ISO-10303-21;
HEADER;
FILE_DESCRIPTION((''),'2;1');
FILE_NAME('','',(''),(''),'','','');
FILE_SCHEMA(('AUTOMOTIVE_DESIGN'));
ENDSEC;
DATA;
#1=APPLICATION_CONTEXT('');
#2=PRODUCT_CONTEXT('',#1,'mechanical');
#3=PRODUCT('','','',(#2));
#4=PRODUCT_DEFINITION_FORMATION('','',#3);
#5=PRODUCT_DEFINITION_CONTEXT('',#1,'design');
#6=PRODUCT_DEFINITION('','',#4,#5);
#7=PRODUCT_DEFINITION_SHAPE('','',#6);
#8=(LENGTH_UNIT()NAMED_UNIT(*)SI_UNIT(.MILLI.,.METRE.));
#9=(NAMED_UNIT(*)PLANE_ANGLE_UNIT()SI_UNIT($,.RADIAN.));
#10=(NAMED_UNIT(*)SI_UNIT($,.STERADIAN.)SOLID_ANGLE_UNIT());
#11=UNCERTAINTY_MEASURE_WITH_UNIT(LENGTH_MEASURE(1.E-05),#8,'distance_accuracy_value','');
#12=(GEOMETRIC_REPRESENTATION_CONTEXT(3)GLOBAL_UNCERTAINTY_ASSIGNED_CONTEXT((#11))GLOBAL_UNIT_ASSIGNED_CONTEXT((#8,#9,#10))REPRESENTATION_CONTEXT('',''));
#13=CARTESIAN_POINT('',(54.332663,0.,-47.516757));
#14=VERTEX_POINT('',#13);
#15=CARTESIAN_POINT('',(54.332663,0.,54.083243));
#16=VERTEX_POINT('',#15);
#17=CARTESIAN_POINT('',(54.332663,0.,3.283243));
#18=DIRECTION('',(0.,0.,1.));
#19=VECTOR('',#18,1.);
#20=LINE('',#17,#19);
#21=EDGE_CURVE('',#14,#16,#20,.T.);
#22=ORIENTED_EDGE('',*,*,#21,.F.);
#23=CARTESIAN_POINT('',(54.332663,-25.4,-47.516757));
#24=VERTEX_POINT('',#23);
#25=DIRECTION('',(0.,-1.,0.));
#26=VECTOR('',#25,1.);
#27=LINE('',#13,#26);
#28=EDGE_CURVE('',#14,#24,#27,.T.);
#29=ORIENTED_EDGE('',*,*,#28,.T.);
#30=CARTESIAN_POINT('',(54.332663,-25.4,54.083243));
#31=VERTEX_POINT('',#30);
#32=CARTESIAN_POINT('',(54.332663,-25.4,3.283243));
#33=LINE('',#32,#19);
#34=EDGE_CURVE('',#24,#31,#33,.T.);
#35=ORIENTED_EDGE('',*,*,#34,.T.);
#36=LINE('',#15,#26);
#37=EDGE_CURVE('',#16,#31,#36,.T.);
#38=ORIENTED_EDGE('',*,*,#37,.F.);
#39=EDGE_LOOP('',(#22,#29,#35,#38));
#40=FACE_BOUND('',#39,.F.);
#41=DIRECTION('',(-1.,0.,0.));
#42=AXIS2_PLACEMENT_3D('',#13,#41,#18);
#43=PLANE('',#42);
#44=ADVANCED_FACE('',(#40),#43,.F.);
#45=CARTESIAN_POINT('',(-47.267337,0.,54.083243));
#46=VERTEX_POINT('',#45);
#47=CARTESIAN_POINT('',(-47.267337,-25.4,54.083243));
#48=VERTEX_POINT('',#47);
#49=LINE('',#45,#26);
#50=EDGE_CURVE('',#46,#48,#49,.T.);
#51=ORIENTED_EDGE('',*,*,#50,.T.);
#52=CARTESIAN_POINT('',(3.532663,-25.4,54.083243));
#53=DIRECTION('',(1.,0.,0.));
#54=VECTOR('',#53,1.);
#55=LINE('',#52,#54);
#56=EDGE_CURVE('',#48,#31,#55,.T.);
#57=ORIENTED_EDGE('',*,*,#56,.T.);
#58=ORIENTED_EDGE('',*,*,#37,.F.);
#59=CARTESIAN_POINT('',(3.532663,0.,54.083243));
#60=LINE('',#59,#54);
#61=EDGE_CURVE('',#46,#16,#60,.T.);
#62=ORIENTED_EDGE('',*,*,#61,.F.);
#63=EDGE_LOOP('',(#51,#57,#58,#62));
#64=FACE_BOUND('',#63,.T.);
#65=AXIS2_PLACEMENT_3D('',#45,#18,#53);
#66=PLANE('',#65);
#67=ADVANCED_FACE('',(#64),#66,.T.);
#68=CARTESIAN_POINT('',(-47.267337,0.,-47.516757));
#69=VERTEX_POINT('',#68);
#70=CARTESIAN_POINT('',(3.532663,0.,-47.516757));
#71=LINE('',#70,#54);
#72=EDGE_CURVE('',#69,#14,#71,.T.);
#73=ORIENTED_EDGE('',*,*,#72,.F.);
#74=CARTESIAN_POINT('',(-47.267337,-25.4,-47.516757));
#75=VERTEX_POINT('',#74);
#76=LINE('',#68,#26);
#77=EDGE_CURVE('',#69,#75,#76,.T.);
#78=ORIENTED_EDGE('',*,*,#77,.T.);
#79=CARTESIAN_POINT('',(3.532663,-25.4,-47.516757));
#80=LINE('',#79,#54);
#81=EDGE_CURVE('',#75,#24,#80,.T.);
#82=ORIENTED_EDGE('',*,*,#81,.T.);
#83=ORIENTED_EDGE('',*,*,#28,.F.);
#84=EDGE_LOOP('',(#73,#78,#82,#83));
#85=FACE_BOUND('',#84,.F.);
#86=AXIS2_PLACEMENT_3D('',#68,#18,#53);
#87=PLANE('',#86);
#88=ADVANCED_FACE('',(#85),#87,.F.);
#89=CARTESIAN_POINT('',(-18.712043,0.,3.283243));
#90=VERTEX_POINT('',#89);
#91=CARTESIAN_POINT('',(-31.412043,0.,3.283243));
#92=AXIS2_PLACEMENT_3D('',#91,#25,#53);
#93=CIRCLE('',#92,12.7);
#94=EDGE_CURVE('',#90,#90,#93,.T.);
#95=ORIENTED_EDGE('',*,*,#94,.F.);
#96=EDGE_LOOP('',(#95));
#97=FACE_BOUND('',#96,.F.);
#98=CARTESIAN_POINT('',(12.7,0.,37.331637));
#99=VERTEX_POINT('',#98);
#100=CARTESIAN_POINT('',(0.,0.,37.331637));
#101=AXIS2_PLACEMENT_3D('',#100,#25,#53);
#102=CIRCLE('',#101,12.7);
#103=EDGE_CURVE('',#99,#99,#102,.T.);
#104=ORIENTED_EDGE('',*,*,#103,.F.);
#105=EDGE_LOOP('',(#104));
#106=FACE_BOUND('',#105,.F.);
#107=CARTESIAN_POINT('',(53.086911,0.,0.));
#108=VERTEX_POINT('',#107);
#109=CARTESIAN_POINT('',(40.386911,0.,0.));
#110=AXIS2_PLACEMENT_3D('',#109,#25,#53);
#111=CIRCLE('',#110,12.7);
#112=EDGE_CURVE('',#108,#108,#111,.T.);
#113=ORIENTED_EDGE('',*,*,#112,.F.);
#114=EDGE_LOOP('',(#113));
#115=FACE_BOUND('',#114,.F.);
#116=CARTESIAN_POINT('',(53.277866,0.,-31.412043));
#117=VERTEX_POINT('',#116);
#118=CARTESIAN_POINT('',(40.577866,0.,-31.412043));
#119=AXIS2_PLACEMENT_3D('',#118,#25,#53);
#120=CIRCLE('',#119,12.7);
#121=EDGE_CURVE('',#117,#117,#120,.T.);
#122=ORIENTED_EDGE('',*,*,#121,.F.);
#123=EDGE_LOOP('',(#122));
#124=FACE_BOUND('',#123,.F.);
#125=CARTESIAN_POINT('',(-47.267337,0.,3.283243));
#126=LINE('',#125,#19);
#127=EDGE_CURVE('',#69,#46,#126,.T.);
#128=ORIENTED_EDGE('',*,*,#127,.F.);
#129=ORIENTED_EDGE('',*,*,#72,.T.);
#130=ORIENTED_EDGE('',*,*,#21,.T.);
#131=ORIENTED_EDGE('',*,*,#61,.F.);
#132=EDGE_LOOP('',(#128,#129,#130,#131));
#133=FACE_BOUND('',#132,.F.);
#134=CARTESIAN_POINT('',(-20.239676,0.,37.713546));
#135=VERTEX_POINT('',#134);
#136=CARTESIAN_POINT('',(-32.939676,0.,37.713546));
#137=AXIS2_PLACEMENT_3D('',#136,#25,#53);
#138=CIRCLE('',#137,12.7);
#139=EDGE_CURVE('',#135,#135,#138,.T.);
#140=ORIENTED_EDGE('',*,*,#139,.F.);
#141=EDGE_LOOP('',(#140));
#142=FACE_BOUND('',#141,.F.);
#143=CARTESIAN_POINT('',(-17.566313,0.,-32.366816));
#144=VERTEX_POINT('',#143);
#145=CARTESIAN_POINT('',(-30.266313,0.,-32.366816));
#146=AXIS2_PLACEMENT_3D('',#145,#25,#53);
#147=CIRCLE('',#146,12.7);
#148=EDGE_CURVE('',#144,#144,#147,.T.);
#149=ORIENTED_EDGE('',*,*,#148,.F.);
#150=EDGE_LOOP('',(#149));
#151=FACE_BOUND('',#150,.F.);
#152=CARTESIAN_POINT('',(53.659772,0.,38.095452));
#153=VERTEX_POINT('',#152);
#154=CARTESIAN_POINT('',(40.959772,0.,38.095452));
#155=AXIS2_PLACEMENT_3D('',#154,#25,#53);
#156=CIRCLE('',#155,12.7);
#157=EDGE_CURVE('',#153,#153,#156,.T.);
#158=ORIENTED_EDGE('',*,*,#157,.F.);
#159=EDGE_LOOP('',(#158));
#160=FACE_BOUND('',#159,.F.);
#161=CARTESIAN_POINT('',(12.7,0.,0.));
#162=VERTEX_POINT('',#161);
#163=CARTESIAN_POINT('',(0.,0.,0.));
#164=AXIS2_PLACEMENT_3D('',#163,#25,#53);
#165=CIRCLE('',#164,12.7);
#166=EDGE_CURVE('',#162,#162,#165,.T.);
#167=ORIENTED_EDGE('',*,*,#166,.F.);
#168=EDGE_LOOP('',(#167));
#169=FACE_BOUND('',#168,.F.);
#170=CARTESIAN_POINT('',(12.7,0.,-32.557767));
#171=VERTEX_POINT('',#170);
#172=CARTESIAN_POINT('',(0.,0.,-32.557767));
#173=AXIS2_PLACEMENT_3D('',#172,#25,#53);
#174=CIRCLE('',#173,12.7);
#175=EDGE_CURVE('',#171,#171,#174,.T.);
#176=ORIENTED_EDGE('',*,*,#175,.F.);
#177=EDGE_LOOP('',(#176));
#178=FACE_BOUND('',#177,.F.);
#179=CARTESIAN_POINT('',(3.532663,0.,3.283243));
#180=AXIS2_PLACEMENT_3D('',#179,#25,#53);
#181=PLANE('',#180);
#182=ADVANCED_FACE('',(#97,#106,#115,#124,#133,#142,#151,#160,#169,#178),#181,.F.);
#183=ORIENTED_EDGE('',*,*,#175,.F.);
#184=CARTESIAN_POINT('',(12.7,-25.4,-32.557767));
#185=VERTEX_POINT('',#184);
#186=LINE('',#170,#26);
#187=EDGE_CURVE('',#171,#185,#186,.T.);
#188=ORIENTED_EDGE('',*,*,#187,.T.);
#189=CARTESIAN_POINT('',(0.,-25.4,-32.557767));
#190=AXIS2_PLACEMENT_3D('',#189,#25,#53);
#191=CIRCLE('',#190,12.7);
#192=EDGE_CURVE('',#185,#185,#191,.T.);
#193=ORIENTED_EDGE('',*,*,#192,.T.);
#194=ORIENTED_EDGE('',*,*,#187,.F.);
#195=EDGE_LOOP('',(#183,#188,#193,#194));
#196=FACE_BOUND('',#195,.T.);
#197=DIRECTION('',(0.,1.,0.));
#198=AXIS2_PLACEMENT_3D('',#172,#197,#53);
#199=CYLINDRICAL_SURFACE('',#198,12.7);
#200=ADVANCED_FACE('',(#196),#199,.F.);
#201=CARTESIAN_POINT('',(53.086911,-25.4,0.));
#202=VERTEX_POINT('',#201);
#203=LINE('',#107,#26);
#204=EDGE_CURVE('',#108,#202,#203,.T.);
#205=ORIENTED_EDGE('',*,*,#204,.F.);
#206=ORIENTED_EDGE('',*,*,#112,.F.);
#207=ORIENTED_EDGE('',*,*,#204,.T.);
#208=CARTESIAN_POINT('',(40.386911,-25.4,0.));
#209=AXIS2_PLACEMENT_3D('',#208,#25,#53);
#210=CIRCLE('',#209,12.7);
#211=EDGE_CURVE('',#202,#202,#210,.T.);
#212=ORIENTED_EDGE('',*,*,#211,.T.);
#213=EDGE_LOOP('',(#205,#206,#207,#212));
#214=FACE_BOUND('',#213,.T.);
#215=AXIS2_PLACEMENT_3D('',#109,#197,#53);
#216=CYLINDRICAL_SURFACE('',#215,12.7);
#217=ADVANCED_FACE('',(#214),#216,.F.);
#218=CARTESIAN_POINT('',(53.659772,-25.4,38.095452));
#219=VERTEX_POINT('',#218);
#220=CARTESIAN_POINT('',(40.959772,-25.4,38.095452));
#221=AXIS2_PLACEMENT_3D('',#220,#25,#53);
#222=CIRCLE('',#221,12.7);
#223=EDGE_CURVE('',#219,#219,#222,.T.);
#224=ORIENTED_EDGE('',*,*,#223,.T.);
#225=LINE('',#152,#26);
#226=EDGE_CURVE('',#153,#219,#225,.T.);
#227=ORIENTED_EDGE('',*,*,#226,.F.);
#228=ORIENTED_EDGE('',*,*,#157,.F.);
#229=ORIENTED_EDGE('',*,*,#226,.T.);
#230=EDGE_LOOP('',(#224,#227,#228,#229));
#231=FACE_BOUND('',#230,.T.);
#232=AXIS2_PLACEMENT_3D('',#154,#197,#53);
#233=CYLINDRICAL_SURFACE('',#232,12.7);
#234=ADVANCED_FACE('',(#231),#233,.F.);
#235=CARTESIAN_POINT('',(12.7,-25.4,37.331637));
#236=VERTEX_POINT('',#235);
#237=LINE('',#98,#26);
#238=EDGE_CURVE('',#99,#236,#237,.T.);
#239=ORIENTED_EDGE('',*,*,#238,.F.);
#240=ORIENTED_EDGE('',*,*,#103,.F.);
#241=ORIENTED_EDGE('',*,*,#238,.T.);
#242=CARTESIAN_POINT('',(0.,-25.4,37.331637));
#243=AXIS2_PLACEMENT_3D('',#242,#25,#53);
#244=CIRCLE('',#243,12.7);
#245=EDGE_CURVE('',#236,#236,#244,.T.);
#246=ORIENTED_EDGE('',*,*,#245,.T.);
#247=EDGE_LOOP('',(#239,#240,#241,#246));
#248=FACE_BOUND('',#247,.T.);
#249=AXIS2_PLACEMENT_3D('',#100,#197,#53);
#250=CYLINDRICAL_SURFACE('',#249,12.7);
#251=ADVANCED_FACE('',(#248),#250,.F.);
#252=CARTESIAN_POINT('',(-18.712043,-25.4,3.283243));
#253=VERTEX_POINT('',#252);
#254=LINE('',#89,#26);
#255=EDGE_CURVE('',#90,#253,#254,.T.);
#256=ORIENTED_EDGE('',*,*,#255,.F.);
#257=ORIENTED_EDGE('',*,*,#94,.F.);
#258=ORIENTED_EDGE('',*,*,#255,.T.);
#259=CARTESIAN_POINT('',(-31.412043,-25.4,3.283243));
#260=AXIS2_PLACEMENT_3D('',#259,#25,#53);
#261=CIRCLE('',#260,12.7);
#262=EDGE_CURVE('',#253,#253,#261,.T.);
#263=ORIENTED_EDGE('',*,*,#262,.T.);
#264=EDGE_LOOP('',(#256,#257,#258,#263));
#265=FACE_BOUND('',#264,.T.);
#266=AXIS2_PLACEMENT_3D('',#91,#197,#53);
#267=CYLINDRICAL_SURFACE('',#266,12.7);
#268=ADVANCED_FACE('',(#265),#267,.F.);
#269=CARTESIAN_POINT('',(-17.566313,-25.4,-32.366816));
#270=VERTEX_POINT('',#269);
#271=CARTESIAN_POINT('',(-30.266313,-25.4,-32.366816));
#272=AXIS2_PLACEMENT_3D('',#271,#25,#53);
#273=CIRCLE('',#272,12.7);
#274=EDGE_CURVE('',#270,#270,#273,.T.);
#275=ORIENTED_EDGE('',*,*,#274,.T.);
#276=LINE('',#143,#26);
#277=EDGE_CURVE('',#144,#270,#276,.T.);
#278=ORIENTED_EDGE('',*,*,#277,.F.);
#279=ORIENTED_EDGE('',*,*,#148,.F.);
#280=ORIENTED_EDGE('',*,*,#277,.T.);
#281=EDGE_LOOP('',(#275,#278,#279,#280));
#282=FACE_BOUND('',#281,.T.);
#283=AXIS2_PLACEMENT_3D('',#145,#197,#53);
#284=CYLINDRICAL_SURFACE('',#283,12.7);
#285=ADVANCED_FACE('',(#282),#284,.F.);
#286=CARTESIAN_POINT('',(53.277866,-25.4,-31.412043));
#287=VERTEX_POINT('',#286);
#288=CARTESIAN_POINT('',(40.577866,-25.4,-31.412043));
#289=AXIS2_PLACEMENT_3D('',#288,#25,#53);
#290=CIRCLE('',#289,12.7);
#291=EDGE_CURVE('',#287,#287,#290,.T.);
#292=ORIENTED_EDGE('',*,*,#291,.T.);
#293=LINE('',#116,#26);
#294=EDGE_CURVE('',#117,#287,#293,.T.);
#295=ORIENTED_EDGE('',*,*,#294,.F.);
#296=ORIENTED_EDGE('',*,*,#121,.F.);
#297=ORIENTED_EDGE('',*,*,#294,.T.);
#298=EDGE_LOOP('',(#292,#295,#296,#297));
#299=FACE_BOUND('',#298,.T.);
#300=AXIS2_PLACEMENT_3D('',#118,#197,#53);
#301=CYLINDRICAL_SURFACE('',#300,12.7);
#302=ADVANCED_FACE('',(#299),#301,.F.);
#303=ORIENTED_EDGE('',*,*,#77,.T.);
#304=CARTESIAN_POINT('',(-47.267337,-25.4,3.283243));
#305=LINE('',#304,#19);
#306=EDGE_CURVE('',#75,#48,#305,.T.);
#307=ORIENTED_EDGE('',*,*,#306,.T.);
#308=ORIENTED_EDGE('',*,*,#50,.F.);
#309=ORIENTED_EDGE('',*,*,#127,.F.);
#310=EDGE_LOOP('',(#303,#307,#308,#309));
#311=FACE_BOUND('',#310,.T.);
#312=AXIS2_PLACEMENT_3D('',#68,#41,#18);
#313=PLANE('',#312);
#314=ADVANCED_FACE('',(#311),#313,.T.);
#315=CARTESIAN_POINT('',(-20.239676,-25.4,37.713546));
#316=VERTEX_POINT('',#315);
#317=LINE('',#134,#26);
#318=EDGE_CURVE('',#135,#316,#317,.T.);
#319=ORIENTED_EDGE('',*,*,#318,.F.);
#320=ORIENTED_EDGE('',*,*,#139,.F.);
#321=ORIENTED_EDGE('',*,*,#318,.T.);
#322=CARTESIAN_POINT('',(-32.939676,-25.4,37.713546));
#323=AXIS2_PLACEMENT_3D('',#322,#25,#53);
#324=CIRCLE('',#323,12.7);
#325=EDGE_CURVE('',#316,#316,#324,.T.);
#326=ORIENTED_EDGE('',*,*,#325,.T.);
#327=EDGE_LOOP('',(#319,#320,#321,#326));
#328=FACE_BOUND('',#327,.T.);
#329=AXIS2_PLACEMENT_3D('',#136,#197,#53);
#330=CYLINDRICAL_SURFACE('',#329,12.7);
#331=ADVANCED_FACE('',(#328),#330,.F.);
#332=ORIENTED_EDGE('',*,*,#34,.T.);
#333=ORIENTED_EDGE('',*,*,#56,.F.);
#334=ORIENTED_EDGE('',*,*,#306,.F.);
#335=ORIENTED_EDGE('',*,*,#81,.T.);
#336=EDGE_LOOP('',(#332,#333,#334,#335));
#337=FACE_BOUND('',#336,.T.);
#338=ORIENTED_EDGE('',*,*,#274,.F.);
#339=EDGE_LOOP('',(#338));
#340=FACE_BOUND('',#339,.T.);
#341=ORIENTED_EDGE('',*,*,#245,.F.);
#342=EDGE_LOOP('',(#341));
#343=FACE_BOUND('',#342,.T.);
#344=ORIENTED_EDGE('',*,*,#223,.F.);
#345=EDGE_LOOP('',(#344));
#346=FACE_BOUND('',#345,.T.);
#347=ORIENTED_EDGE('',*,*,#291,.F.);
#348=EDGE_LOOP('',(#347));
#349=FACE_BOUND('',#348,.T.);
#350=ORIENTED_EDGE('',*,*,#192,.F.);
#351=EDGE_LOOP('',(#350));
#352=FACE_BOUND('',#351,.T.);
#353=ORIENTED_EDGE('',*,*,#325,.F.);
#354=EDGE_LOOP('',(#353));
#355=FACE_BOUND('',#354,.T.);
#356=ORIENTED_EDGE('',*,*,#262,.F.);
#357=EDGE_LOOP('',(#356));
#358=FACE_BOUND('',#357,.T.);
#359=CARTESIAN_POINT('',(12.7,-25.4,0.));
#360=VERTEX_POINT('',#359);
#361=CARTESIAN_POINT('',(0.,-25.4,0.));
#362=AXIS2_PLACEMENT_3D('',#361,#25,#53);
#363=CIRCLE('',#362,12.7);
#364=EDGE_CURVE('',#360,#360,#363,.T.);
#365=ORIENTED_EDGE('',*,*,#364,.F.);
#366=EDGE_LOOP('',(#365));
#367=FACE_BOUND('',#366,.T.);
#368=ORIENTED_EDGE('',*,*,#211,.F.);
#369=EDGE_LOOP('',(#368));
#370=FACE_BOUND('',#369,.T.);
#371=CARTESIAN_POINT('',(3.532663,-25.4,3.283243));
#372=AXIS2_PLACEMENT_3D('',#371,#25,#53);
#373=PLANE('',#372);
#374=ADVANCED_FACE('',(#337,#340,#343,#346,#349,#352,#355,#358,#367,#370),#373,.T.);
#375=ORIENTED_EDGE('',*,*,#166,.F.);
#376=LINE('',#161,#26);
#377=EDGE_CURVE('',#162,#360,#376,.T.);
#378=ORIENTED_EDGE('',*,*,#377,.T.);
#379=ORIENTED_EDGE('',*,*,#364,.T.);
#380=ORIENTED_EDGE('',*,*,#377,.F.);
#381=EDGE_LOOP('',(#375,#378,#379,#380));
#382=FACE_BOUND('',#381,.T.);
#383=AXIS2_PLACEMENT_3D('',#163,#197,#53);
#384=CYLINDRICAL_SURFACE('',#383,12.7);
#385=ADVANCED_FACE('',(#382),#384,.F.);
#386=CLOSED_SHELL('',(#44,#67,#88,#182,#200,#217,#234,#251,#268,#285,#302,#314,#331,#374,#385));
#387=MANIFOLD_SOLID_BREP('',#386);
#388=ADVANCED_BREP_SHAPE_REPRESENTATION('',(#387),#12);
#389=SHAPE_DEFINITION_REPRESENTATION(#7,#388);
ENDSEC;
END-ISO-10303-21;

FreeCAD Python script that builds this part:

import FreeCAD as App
import Part
import Sketcher

V = App.Vector
Q = App.Units.Quantity


def add_polygon(sketch, points):
    """Adds a closed chain of lines whose ends are joined by coincident constraints."""
    first, n = sketch.GeometryCount, len(points)
    for a, b in zip(points, points[1:] + points[:1]):
        sketch.addGeometry(Part.LineSegment(App.Vector(*a, 0), App.Vector(*b, 0)), False)
    for i in range(n):
        sketch.addConstraint(Sketcher.Constraint("Coincident", first + i, 2, first + (i + 1) % n, 1))

doc = App.newDocument("Part")
body = doc.addObject("PartDesign::Body", "Body")

# Sketch on XZ plane
sketch1 = body.newObject("Sketcher::SketchObject", "Sketch")
sketch1.AttachmentSupport = (doc.getObject("XZ_Plane"), [""])
sketch1.MapMode = "FlatFace"
add_polygon(sketch1, [(-47, 54), (-47, -48), (54, -48), (54, 54)])  # lines 0-3
sketch1.addGeometry(Part.Circle(V(-30, -32, 0), V(0, 0, 1), 13), False)  # 4
sketch1.addGeometry(Part.Circle(V(0, -33, 0), V(0, 0, 1), 13), False)  # 5
sketch1.addGeometry(Part.Circle(V(0, 0, 0), V(0, 0, 1), 13), False)  # 6
sketch1.addGeometry(Part.Circle(V(41, -31, 0), V(0, 0, 1), 13), False)  # 7
sketch1.addGeometry(Part.Circle(V(40, 0, 0), V(0, 0, 1), 13), False)  # 8
sketch1.addGeometry(Part.Circle(V(-31, 3, 0), V(0, 0, 1), 13), False)  # 9
sketch1.addGeometry(Part.Circle(V(-33, 38, 0), V(0, 0, 1), 13), False)  # 10
sketch1.addGeometry(Part.Circle(V(0, 37, 0), V(0, 0, 1), 13), False)  # 11
sketch1.addGeometry(Part.Circle(V(41, 38, 0), V(0, 0, 1), 13), False)  # 12
sketch1.addConstraint([
    Sketcher.Constraint("Vertical", 0),
    Sketcher.Constraint("Horizontal", 1),
    Sketcher.Constraint("Vertical", 2),
    Sketcher.Constraint("Horizontal", 3),
    Sketcher.Constraint("Coincident", 6, 3, -1, 1),
    Sketcher.Constraint("Equal", 4, 5),
    Sketcher.Constraint("Equal", 5, 6),
    Sketcher.Constraint("Equal", 6, 7),
    Sketcher.Constraint("Equal", 7, 8),
    Sketcher.Constraint("Equal", 8, 9),
    Sketcher.Constraint("Equal", 9, 10),
    Sketcher.Constraint("Equal", 10, 11),
    Sketcher.Constraint("Equal", 11, 12),
    Sketcher.Constraint("PointOnObject", 5, 3, -2),
    Sketcher.Constraint("PointOnObject", 8, 3, -1),
    Sketcher.Constraint("PointOnObject", 11, 3, -2),
    Sketcher.Constraint("Equal", 3, 0),
    Sketcher.Constraint("Diameter", 4, Q("1 in")),
    Sketcher.Constraint("DistanceX", 1, 1, 1, 2, Q("4 in")),
    Sketcher.Constraint("DistanceY", 0, 2, 9, 3, Q("2 in")),
    Sketcher.Constraint("DistanceX", -1, 1, 8, 3, 40.386911),
    Sketcher.Constraint("DistanceY", 5, 3, 4, 3, 0.190951),
    Sketcher.Constraint("DistanceX", 4, 3, 7, 3, 70.844179),
    Sketcher.Constraint("DistanceX", 9, 3, 4, 3, 1.14573),
    Sketcher.Constraint("DistanceY", 4, 3, 9, 3, 35.650059),
    Sketcher.Constraint("DistanceY", 11, 3, 10, 3, 0.381909),
    Sketcher.Constraint("DistanceX", 8, 3, 12, 3, 0.572861),
    Sketcher.Constraint("DistanceX", 10, 3, 12, 3, 73.899448),
    Sketcher.Constraint("DistanceX", 0, 2, 10, 3, 14.327661),
    Sketcher.Constraint("DistanceY", 12, 3, 2, 2, 15.987791),
    Sketcher.Constraint("DistanceX", 4, 3, -1, 1, 30.266313),
    Sketcher.Constraint("DistanceY", 4, 3, -1, 1, 32.366816),
    Sketcher.Constraint("DistanceY", 7, 3, -1, 1, 31.412043),
    Sketcher.Constraint("DistanceY", -1, 1, 10, 3, 37.713546),
])
pad1 = body.newObject("PartDesign::Pad", "Pad")
pad1.Profile = sketch1
pad1.Length = Q("1 in")

doc.recompute()
